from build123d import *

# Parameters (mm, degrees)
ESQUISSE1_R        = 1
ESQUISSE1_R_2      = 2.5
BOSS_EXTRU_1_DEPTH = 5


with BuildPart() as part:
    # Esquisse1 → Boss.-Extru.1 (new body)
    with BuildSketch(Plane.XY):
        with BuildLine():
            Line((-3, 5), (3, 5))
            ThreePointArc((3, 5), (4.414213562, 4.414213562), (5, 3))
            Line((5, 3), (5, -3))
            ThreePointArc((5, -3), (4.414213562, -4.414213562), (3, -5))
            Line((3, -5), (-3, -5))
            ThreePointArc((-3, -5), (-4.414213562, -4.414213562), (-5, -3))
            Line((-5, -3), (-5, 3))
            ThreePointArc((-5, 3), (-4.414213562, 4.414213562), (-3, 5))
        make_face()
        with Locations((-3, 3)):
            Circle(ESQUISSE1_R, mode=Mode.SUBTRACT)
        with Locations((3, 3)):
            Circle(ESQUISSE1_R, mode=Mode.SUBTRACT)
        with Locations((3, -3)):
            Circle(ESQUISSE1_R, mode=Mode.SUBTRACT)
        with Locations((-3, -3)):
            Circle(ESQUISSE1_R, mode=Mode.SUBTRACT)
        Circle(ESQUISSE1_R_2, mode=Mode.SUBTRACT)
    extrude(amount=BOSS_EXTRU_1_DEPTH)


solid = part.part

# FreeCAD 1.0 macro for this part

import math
import FreeCAD as App
import Part
import Sketcher
from FreeCAD import Vector

doc = App.newDocument("Part")
params = doc.addObject("Spreadsheet::Sheet", "Params")
for row, (alias, value) in enumerate([
    ("sketch1_diameter", "2 mm"),
    ("sketch1_diameter2", "5 mm"),
    ("sketch1_radius", "2 mm"),
    ("sketch1_width", "6 mm"),
    ("pad1_length", "5 mm"),
], start=1):
    params.set(f"A{row}", alias)
    params.set(f"B{row}", "=" + value)
    params.setAlias(f"B{row}", alias)

body = doc.addObject("PartDesign::Body", "Body")

# Sketch on XY plane
sketch1 = body.newObject("Sketcher::SketchObject", "Sketch")
sketch1.AttachmentSupport = (doc.getObject("XY_Plane"), [""])
sketch1.MapMode = "FlatFace"
sketch1.addGeometry(Part.LineSegment(Vector(3, 5, 0), Vector(-3, 5, 0)), False)
sketch1.addGeometry(Part.ArcOfCircle(Part.Circle(Vector(-3, 3, 0), Vector(0, 0, 1), 2), math.radians(90), math.radians(180)), False)
sketch1.addGeometry(Part.LineSegment(Vector(-5, 3, 0), Vector(-5, -3, 0)), False)
sketch1.addGeometry(Part.ArcOfCircle(Part.Circle(Vector(-3, -3, 0), Vector(0, 0, 1), 2), math.radians(-180), math.radians(-90)), False)
sketch1.addGeometry(Part.LineSegment(Vector(-3, -5, 0), Vector(3, -5, 0)), False)
sketch1.addGeometry(Part.ArcOfCircle(Part.Circle(Vector(3, -3, 0), Vector(0, 0, 1), 2), math.radians(-90), math.radians(0)), False)
sketch1.addGeometry(Part.LineSegment(Vector(5, -3, 0), Vector(5, 3, 0)), False)
sketch1.addGeometry(Part.ArcOfCircle(Part.Circle(Vector(3, 3, 0), Vector(0, 0, 1), 2), math.radians(0), math.radians(90)), False)
sketch1.addGeometry(Part.Circle(Vector(3, -3, 0), Vector(0, 0, 1), 1), False)
sketch1.addGeometry(Part.Circle(Vector(-3, -3, 0), Vector(0, 0, 1), 1), False)
sketch1.addGeometry(Part.Circle(Vector(3, 3, 0), Vector(0, 0, 1), 1), False)
sketch1.addGeometry(Part.Circle(Vector(0, 0, 0), Vector(0, 0, 1), 2.5), False)
sketch1.addGeometry(Part.Circle(Vector(-3, 3, 0), Vector(0, 0, 1), 1), False)
sketch1.addConstraint(Sketcher.Constraint("Tangent", 0, 2, 1, 1))
sketch1.addConstraint(Sketcher.Constraint("Tangent", 1, 2, 2, 1))
sketch1.addConstraint(Sketcher.Constraint("Tangent", 2, 2, 3, 1))
sketch1.addConstraint(Sketcher.Constraint("Tangent", 3, 2, 4, 1))
sketch1.addConstraint(Sketcher.Constraint("Tangent", 4, 2, 5, 1))
sketch1.addConstraint(Sketcher.Constraint("Tangent", 5, 2, 6, 1))
sketch1.addConstraint(Sketcher.Constraint("Tangent", 6, 2, 7, 1))
sketch1.addConstraint(Sketcher.Constraint("Tangent", 7, 2, 0, 1))
sketch1.addConstraint(Sketcher.Constraint("Horizontal", 0))
sketch1.addConstraint(Sketcher.Constraint("Vertical", 2))
sketch1.addConstraint(Sketcher.Constraint("Horizontal", 4))
sketch1.addConstraint(Sketcher.Constraint("Vertical", 6))
sketch1.addConstraint(Sketcher.Constraint("Coincident", 11, 3, -1, 1))
sketch1.addConstraint(Sketcher.Constraint("Coincident", 8, 3, 5, 3))
sketch1.addConstraint(Sketcher.Constraint("Coincident", 9, 3, 3, 3))
sketch1.addConstraint(Sketcher.Constraint("Coincident", 10, 3, 7, 3))
sketch1.addConstraint(Sketcher.Constraint("Coincident", 12, 3, 1, 3))
sketch1.addConstraint(Sketcher.Constraint("Equal", 1, 3))
sketch1.addConstraint(Sketcher.Constraint("Equal", 3, 5))
sketch1.addConstraint(Sketcher.Constraint("Equal", 5, 7))
sketch1.addConstraint(Sketcher.Constraint("Equal", 8, 9))
sketch1.addConstraint(Sketcher.Constraint("Equal", 9, 10))
sketch1.addConstraint(Sketcher.Constraint("Equal", 10, 12))
sketch1.addConstraint(Sketcher.Constraint("Symmetric", 1, 3, 5, 3, -1, 1))
sketch1.addConstraint(Sketcher.Constraint("Equal", 4, 2))
sketch1.addConstraint(Sketcher.Constraint("Diameter", 8, 2.0))
sketch1.addConstraint(Sketcher.Constraint("Diameter", 11, 5.0))
sketch1.addConstraint(Sketcher.Constraint("Radius", 1, 2.0))
sketch1.addConstraint(Sketcher.Constraint("DistanceX", 0, 2, 0, 1, 6.0))
sketch1.setExpression("Constraints[25]", "Params.sketch1_diameter")
sketch1.setExpression("Constraints[26]", "Params.sketch1_diameter2")
sketch1.setExpression("Constraints[27]", "Params.sketch1_radius")
sketch1.setExpression("Constraints[28]", "Params.sketch1_width")
pad1 = body.newObject("PartDesign::Pad", "Pad")
pad1.Profile = sketch1
pad1.setExpression("Length", "Params.pad1_length")

doc.recompute()
